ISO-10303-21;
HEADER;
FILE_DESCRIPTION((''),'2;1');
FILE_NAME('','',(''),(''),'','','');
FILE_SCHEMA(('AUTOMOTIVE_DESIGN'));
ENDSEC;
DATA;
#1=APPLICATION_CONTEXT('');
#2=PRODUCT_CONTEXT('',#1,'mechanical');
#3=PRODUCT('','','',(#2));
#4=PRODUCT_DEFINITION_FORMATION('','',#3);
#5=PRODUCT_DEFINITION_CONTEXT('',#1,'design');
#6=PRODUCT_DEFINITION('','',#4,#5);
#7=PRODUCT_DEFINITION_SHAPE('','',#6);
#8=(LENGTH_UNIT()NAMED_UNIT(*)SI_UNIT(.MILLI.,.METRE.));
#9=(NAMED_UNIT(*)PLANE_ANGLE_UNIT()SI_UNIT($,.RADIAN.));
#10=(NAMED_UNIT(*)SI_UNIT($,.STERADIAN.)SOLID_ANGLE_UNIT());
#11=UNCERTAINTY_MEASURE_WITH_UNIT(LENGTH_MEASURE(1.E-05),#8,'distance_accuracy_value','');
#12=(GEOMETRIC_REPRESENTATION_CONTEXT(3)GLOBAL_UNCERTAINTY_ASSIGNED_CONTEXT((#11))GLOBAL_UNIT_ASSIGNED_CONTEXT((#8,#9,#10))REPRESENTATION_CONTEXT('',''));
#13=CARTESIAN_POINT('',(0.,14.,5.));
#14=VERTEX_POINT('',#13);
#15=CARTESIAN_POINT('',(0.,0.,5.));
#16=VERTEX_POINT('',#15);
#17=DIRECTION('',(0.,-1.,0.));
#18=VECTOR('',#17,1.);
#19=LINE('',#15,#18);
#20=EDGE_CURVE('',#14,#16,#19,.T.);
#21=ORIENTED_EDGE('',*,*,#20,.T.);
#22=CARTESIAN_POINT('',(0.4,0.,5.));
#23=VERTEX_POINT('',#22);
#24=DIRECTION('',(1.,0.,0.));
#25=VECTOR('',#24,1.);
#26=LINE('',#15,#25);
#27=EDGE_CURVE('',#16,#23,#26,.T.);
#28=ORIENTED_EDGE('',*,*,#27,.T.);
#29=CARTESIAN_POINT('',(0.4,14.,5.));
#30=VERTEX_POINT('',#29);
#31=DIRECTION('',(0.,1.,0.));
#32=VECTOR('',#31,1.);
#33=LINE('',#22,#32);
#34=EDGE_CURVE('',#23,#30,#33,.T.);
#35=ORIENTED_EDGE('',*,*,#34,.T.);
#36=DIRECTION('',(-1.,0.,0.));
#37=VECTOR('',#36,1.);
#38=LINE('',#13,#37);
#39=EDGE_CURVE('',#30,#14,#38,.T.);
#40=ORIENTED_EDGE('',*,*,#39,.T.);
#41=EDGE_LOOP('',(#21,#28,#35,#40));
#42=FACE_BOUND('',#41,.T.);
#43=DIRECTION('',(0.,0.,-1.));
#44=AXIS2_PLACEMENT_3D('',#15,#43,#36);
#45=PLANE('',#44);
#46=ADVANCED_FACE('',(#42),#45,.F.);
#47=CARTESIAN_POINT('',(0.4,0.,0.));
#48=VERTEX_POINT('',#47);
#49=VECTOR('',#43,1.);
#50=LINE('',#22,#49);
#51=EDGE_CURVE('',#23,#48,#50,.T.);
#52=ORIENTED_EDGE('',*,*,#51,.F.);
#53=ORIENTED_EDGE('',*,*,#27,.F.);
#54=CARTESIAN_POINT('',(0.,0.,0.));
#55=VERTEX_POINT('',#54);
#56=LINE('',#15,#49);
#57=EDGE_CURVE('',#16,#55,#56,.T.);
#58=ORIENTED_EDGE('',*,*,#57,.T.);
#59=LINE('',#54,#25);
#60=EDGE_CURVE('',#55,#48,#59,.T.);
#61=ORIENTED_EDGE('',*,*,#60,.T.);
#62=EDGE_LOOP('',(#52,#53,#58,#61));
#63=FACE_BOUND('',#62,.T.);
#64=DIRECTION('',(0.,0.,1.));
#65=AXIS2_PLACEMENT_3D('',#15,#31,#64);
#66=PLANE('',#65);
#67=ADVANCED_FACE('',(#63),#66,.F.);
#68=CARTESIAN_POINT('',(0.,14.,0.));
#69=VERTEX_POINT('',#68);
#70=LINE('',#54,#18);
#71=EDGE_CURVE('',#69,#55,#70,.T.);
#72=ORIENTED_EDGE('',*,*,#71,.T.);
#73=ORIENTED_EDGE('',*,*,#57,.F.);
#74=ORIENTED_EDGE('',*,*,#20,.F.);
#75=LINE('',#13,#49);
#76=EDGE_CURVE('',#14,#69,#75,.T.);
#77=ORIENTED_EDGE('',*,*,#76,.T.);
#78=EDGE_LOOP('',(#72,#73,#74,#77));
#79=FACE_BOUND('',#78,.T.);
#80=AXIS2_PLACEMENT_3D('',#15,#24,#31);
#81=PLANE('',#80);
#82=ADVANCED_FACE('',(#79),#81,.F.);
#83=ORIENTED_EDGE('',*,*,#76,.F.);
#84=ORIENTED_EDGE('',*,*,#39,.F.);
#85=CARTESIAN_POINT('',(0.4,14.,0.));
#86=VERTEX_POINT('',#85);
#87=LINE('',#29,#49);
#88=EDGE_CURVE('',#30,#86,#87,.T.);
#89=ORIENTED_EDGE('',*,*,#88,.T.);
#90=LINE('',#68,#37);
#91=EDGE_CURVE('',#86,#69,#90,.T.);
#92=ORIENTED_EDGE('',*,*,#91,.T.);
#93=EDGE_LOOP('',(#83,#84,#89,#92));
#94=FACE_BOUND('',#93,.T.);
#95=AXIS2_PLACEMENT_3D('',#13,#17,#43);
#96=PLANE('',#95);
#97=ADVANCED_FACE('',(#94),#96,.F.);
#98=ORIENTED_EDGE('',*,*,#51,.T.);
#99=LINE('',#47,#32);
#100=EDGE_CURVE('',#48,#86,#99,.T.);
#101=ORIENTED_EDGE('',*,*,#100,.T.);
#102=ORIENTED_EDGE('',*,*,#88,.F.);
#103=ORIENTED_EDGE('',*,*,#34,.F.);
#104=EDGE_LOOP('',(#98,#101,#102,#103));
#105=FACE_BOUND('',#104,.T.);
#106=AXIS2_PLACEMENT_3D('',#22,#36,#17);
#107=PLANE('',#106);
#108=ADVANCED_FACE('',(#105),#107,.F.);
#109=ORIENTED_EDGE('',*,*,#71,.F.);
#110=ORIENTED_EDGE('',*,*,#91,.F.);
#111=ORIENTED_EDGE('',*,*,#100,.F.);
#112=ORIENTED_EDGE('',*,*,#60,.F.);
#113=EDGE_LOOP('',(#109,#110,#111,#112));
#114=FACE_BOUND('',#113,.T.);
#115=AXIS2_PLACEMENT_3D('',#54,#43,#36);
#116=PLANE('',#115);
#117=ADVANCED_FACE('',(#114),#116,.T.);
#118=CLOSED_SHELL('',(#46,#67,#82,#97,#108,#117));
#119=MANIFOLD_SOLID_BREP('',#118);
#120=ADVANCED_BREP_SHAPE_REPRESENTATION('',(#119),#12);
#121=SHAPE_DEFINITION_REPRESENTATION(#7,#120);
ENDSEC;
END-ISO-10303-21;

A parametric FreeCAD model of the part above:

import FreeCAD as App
import Part
import Sketcher
from FreeCAD import Vector
Q = App.Units.Quantity


def add_polygon(sketch, points):
    """Adds a closed chain of lines whose ends are joined by coincident constraints."""
    first, n = sketch.GeometryCount, len(points)
    for a, b in zip(points, points[1:] + points[:1]):
        sketch.addGeometry(Part.LineSegment(App.Vector(*a, 0), App.Vector(*b, 0)), False)
    for i in range(n):
        sketch.addConstraint(Sketcher.Constraint("Coincident", first + i, 2, first + (i + 1) % n, 1))

doc = App.newDocument("Part")
params = doc.addObject("Spreadsheet::Sheet", "Params")
for row, (alias, value) in enumerate([
    ("sketch1_height", "14 mm"),
    ("sketch1_width", "0.4 mm"),
    ("pad1_length", "5 mm"),
], start=1):
    params.set(f"A{row}", alias)
    params.set(f"B{row}", "=" + value)
    params.setAlias(f"B{row}", alias)

body = doc.addObject("PartDesign::Body", "Body")

sketch1 = body.newObject("Sketcher::SketchObject", "Sketch")
sketch1.AttachmentSupport = (doc.getObject("XY_Plane"), [""])
sketch1.MapMode = "FlatFace"
add_polygon(sketch1, [(0, 14), (0, 0), (0.4, 0), (0.4, 14)])
sketch1.addConstraint(Sketcher.Constraint("Vertical", 0))
sketch1.addConstraint(Sketcher.Constraint("Horizontal", 1))
sketch1.addConstraint(Sketcher.Constraint("Vertical", 2))
sketch1.addConstraint(Sketcher.Constraint("Horizontal", 3))
sketch1.addConstraint(Sketcher.Constraint("Coincident", 0, 2, -1, 1))
sketch1.addConstraint(Sketcher.Constraint("DistanceY", 0, 2, 0, 1, Q("14 mm")))
sketch1.addConstraint(Sketcher.Constraint("DistanceX", 1, 1, 1, 2, Q("0.4 mm")))
sketch1.setExpression("Constraints[9]", "Params.sketch1_height")
sketch1.setExpression("Constraints[10]", "Params.sketch1_width")
pad1 = body.newObject("PartDesign::Pad", "Pad")
pad1.Profile = sketch1
pad1.setExpression("Length", "Params.pad1_length")

doc.recompute()
